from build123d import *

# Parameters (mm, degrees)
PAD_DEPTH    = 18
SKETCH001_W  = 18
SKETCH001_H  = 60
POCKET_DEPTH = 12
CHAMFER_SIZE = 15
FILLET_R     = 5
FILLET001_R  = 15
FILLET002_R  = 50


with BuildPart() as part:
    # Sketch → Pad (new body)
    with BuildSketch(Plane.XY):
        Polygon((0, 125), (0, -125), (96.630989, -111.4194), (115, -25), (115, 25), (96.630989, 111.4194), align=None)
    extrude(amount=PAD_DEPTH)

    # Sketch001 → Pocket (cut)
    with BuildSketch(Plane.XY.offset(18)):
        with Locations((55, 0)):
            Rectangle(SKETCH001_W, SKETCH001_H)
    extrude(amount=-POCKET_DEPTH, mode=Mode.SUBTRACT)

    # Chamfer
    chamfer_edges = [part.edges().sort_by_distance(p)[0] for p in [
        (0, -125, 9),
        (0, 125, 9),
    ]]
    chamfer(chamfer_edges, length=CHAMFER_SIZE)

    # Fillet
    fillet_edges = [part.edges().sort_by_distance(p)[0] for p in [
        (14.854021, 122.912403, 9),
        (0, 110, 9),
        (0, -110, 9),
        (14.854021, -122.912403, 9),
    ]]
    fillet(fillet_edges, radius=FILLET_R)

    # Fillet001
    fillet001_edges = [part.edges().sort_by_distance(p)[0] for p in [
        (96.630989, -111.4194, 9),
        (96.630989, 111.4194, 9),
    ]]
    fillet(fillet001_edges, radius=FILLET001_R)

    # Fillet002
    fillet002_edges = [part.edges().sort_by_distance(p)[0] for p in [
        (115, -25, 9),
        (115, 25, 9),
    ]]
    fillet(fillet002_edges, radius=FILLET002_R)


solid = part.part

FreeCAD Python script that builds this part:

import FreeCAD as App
import Part
import Sketcher

V = App.Vector
Q = App.Units.Quantity


def edges_at(feature, points):
    """Names of the edges that pass closest to the given points."""
    edges = feature.Shape.Edges
    near = lambda p: min(range(len(edges)), key=lambda i: edges[i].distToShape(Part.Vertex(*p))[0])
    return sorted({f"Edge{near(p) + 1}" for p in points})


def add_polygon(sketch, points):
    """Adds a closed chain of lines whose ends are joined by coincident constraints."""
    first, n = sketch.GeometryCount, len(points)
    for a, b in zip(points, points[1:] + points[:1]):
        sketch.addGeometry(Part.LineSegment(App.Vector(*a, 0), App.Vector(*b, 0)), False)
    for i in range(n):
        sketch.addConstraint(Sketcher.Constraint("Coincident", first + i, 2, first + (i + 1) % n, 1))

doc = App.newDocument("Part")
body = doc.addObject("PartDesign::Body", "Body")

sketch1 = body.newObject("Sketcher::SketchObject", "Sketch")
sketch1.AttachmentSupport = (doc.getObject("XY_Plane"), [""])
sketch1.MapMode = "FlatFace"
add_polygon(sketch1, [(0, 125), (0, -125), (97, -111), (115, -25), (115, 25), (97, 111)])
sketch1.addConstraint(Sketcher.Constraint("Vertical", 0))
sketch1.addConstraint(Sketcher.Constraint("Vertical", 3))
sketch1.addConstraint(Sketcher.Constraint("Symmetric", 0, 2, 5, 2, -1, 1))
sketch1.addConstraint(Sketcher.Constraint("Symmetric", 1, 2, 4, 2, -1))
sketch1.addConstraint(Sketcher.Constraint("Equal", 2, 4))
sketch1.addConstraint(Sketcher.Constraint("DistanceY", 0, 2, 0, 1, Q("250 mm")))
sketch1.addConstraint(Sketcher.Constraint("DistanceY", 3, 1, 3, 2, Q("50 mm")))
sketch1.addConstraint(Sketcher.Constraint("Angle", 1, Q("8 deg")))
sketch1.addConstraint(Sketcher.Constraint("Angle", 2, Q("78 deg")))
sketch1.addConstraint(Sketcher.Constraint("DistanceX", -1, 1, 2, 2, Q("115 mm")))
pad1 = body.newObject("PartDesign::Pad", "Pad")
pad1.Profile = sketch1
pad1.Length = 18

sketch2 = body.newObject("Sketcher::SketchObject", "Sketch001")
sketch2.AttachmentSupport = (doc.getObject("XY_Plane"), [""])
sketch2.MapMode = "FlatFace"
sketch2.AttachmentOffset = App.Placement(V(0, 0, 18), App.Rotation())
add_polygon(sketch2, [(46, 30), (46, -30), (64, -30), (64, 30)])
sketch2.addConstraint(Sketcher.Constraint("Vertical", 0))
sketch2.addConstraint(Sketcher.Constraint("Horizontal", 1))
sketch2.addConstraint(Sketcher.Constraint("Vertical", 2))
sketch2.addConstraint(Sketcher.Constraint("Horizontal", 3))
sketch2.addConstraint(Sketcher.Constraint("DistanceX", 1, 1, 1, 2, Q("18 mm")))
sketch2.addConstraint(Sketcher.Constraint("DistanceY", 0, 2, 0, 1, Q("60 mm")))
sketch2.addConstraint(Sketcher.Constraint("DistanceX", -1, 1, 0, 2, Q("46 mm")))
sketch2.addConstraint(Sketcher.Constraint("DistanceY", 0, 2, -1, 1, Q("30 mm")))
pocket1 = body.newObject("PartDesign::Pocket", "Pocket")
pocket1.Profile = sketch2
pocket1.Length = 12
doc.recompute()

chamfer = body.newObject("PartDesign::Chamfer", "Chamfer")
chamfer.Base = (pocket1, edges_at(pocket1, [(0, -125, 9), (0, 125, 9)]))
chamfer.Size = 15
doc.recompute()

fillet = body.newObject("PartDesign::Fillet", "Fillet")
fillet.Base = (chamfer, edges_at(chamfer, [
    (14.854, 122.912, 9),
    (0, 110, 9),
    (0, -110, 9),
    (14.854, -122.912, 9),
]))
fillet.Radius = 5
doc.recompute()

fillet2 = body.newObject("PartDesign::Fillet", "Fillet001")
fillet2.Base = (fillet, edges_at(fillet, [(96.631, -111.419, 9), (96.631, 111.419, 9)]))
fillet2.Radius = 15
doc.recompute()

fillet3 = body.newObject("PartDesign::Fillet", "Fillet002")
fillet3.Base = (fillet2, edges_at(fillet2, [(115, -25, 9), (115, 25, 9)]))
fillet3.Radius = 50

doc.recompute()
